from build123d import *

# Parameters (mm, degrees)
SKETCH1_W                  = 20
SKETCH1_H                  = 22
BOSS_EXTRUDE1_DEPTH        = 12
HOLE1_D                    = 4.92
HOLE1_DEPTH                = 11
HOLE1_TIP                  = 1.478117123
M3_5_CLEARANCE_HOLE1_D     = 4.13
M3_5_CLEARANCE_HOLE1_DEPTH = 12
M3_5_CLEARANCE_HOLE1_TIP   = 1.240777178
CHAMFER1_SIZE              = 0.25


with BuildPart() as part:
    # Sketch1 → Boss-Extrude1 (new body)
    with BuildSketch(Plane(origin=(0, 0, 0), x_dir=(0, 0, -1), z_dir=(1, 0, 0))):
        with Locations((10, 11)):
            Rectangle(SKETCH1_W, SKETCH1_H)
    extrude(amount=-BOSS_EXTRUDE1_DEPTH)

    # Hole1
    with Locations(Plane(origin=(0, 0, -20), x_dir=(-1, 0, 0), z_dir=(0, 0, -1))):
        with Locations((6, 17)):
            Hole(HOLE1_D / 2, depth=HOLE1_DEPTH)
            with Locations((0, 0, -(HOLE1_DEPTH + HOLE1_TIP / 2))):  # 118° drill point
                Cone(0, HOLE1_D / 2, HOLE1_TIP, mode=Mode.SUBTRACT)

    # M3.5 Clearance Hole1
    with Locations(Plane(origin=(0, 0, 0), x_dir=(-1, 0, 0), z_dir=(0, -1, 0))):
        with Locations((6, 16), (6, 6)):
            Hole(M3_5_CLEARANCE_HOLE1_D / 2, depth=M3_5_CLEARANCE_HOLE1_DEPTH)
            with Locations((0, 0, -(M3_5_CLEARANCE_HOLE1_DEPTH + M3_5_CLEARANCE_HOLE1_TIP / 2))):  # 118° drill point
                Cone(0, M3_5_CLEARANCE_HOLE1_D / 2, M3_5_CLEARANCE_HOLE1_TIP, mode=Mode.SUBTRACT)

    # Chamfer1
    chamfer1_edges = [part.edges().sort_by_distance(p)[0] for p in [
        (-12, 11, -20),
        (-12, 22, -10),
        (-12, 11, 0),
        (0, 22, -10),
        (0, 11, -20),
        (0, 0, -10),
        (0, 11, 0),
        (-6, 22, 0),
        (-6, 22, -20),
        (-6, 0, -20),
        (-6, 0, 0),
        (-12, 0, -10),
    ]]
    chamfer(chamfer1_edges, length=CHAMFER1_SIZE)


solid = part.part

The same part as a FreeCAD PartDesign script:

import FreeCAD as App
import Part
import Sketcher
from FreeCAD import Vector


def edges_at(feature, points):
    """Names of the edges that pass closest to the given points."""
    edges = feature.Shape.Edges
    near = lambda p: min(range(len(edges)), key=lambda i: edges[i].distToShape(Part.Vertex(*p))[0])
    return sorted({f"Edge{near(p) + 1}" for p in points})

doc = App.newDocument("Part")
body = doc.addObject("PartDesign::Body", "Body")

sketch1 = body.newObject("Sketcher::SketchObject", "Sketch")
sketch1.AttachmentSupport = (doc.getObject("YZ_Plane"), [""])
sketch1.MapMode = "FlatFace"
sketch1.addGeometry([
    Part.LineSegment(Vector(22, 0, 0), Vector(0, 0, 0)),
    Part.LineSegment(Vector(0, 0, 0), Vector(0, -20, 0)),
    Part.LineSegment(Vector(0, -20, 0), Vector(22, -20, 0)),
    Part.LineSegment(Vector(22, -20, 0), Vector(22, 0, 0)),
], False)
sketch1.addConstraint([
    Sketcher.Constraint("Coincident", 0, 2, 1, 1),
    Sketcher.Constraint("Coincident", 1, 2, 2, 1),
    Sketcher.Constraint("Coincident", 2, 2, 3, 1),
    Sketcher.Constraint("Coincident", 3, 2, 0, 1),
    Sketcher.Constraint("Horizontal", 0),
    Sketcher.Constraint("Vertical", 1),
    Sketcher.Constraint("Horizontal", 2),
    Sketcher.Constraint("Vertical", 3),
    Sketcher.Constraint("Coincident", 0, 2, -1, 1),
    Sketcher.Constraint("DistanceX", 0, 2, 0, 1, 22.0),
    Sketcher.Constraint("DistanceY", 1, 2, 1, 1, 20.0),
])
pad1 = body.newObject("PartDesign::Pad", "Pad")
pad1.Profile = sketch1
pad1.Length = 12
pad1.Reversed = True

sketch2 = body.newObject("Sketcher::SketchObject", "Sketch001")
sketch2.AttachmentSupport = (doc.getObject("XY_Plane"), [""])
sketch2.MapMode = "FlatFace"
sketch2.AttachmentOffset = App.Placement(Vector(0, 0, -20), App.Rotation())
sketch2.addGeometry(Part.Circle(Vector(-6, 17, 0), Vector(0, 0, 1), 2.5), False)
sketch2.addConstraint([
    Sketcher.Constraint("Diameter", 0, 4.92),
    Sketcher.Constraint("DistanceX", 0, 3, -1, 1, 6.0),
    Sketcher.Constraint("DistanceY", -1, 1, 0, 3, 17.0),
])
doc.recompute()
hole = body.newObject("PartDesign::Hole", "Hole")
hole.Profile = sketch2
hole.ThreadType = "None"
hole.Diameter = 4.92
hole.DepthType = "Dimension"
hole.Depth = 11
hole.DrillPoint = "Angled"
hole.DrillPointAngle = 118
hole.Reversed = True

sketch3 = body.newObject("Sketcher::SketchObject", "Sketch002")
sketch3.AttachmentSupport = (doc.getObject("XZ_Plane"), [""])
sketch3.MapMode = "FlatFace"
sketch3.addGeometry([
    Part.Circle(Vector(-6, -16, 0), Vector(0, 0, 1), 2.1),
    Part.Circle(Vector(-6, -6, 0), Vector(0, 0, 1), 2.1),
], False)
sketch3.addConstraint([
    Sketcher.Constraint("Equal", 0, 1),
    Sketcher.Constraint("Vertical", 0, 3, 1, 3),
    Sketcher.Constraint("Diameter", 0, 4.13),
    Sketcher.Constraint("DistanceX", 0, 3, -1, 1, 6.0),
    Sketcher.Constraint("DistanceY", 0, 3, -1, 1, 16.0),
    Sketcher.Constraint("DistanceY", 1, 3, -1, 1, 6.0),
])
doc.recompute()
hole2 = body.newObject("PartDesign::Hole", "Hole001")
hole2.Profile = sketch3
hole2.ThreadType = "None"
hole2.Diameter = 4.13
hole2.DepthType = "Dimension"
hole2.Depth = 12
hole2.DrillPoint = "Angled"
hole2.DrillPointAngle = 118
doc.recompute()

chamfer = body.newObject("PartDesign::Chamfer", "Chamfer")
chamfer.Base = (hole2, edges_at(hole2, [
    (-12, 11, -20),
    (-12, 22, -10),
    (-12, 11, 0),
    (0, 22, -10),
    (0, 11, -20),
    (0, 0, -10),
    (0, 11, 0),
    (-6, 22, 0),
    (-6, 22, -20),
    (-6, 0, -20),
    (-6, 0, 0),
    (-12, 0, -10),
]))
chamfer.Size = 0.25

doc.recompute()
